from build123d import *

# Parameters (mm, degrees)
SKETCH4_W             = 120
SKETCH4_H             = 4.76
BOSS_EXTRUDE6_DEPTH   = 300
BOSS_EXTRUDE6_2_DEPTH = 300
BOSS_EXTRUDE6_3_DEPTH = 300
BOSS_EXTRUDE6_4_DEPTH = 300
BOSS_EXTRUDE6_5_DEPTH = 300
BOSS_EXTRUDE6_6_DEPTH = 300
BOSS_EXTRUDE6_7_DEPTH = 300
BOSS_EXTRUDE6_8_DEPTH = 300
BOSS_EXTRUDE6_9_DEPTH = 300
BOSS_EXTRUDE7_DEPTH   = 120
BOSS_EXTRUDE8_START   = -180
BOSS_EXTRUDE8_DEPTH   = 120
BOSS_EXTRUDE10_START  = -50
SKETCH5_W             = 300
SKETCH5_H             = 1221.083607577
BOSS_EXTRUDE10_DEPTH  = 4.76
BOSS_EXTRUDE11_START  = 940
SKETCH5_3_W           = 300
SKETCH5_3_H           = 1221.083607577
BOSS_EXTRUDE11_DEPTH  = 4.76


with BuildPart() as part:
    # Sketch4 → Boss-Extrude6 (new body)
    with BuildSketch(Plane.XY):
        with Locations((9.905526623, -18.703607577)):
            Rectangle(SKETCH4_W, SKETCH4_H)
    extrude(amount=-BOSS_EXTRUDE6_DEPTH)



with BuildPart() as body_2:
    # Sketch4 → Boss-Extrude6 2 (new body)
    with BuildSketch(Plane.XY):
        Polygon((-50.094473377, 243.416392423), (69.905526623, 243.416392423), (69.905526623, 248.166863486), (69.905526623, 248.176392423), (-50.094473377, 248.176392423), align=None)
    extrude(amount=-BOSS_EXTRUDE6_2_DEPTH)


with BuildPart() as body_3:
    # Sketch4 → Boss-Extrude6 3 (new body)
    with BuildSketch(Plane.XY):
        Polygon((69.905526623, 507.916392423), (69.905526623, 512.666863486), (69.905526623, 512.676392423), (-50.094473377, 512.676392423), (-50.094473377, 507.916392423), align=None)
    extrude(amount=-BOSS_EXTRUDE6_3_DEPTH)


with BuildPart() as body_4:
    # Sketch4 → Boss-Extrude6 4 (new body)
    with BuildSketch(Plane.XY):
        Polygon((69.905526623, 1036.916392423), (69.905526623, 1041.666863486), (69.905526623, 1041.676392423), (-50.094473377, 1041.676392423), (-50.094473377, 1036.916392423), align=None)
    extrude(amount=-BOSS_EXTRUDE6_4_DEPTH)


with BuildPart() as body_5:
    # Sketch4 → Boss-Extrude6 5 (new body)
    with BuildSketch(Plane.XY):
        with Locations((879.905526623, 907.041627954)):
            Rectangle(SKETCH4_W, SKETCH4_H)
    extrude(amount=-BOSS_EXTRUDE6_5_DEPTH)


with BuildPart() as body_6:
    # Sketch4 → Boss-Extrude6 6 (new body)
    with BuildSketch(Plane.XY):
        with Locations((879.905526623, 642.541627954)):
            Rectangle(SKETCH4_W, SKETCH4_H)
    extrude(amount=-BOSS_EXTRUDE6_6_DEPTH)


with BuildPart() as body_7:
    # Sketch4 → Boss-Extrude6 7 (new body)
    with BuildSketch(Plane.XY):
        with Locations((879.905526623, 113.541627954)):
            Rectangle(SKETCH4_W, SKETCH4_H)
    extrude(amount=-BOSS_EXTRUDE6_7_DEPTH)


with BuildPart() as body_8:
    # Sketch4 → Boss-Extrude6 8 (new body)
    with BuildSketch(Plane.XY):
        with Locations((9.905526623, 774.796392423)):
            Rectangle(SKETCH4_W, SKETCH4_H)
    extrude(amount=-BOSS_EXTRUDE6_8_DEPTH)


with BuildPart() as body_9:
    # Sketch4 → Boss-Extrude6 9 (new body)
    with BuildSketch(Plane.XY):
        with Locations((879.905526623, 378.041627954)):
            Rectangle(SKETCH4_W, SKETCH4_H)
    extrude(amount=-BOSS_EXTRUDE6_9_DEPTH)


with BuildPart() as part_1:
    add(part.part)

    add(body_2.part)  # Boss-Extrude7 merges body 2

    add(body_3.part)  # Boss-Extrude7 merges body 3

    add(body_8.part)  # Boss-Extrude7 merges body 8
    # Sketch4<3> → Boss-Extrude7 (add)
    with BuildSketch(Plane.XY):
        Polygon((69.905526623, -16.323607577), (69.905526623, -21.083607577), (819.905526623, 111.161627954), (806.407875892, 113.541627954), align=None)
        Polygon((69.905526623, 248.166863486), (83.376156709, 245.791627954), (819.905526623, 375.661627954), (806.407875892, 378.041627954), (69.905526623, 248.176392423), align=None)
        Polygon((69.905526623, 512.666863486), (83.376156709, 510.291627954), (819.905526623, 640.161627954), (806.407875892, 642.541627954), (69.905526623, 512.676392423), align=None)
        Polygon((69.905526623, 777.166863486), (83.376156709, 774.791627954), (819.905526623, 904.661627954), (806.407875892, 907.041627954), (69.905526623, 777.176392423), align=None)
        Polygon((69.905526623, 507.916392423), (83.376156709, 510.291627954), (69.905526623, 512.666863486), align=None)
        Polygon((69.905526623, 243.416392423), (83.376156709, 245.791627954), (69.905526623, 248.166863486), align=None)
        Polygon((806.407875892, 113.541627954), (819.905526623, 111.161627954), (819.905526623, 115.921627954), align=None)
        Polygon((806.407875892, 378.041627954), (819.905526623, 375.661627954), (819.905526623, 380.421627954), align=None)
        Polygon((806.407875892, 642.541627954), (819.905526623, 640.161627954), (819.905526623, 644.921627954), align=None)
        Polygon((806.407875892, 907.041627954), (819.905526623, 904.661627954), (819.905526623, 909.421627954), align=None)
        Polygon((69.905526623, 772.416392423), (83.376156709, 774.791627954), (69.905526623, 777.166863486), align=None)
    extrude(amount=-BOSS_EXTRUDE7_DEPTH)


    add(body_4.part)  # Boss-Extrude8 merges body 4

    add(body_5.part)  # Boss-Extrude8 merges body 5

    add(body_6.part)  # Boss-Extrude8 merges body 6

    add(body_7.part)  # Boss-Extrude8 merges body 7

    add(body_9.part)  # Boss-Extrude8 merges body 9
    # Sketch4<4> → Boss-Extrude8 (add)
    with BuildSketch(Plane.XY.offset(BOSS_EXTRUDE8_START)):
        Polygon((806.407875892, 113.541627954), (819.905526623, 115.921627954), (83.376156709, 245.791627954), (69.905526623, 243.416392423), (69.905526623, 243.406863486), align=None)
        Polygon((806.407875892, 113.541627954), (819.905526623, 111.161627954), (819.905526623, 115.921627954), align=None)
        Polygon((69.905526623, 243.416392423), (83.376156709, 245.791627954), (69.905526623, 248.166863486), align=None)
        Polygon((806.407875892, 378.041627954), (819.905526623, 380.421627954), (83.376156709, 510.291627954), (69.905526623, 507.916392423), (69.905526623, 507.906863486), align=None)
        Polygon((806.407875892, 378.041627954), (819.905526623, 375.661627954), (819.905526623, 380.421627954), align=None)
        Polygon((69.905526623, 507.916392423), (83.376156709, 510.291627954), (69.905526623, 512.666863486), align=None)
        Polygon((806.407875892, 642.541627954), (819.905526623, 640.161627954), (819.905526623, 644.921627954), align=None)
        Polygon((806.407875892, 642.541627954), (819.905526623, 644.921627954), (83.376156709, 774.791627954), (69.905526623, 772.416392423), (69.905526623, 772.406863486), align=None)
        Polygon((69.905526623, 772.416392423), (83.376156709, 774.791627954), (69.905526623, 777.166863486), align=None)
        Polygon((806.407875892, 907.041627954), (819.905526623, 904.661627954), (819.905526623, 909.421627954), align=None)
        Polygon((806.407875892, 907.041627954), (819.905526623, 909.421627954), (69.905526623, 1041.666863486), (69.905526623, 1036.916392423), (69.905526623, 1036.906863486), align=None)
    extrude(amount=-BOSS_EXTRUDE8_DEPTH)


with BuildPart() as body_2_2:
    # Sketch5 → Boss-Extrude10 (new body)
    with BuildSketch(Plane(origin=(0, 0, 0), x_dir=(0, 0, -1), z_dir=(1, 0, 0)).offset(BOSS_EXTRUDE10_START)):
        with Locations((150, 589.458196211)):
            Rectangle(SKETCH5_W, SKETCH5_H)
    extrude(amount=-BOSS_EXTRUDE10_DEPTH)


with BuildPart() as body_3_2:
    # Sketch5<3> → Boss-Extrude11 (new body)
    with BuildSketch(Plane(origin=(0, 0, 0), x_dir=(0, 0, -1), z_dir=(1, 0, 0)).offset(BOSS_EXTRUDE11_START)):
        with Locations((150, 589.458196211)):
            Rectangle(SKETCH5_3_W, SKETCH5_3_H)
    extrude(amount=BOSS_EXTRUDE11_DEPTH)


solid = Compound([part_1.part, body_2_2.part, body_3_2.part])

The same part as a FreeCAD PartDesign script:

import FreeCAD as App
import Part
import Sketcher

V = App.Vector
Q = App.Units.Quantity


def add_polygon(sketch, points):
    """Adds a closed chain of lines whose ends are joined by coincident constraints."""
    first, n = sketch.GeometryCount, len(points)
    for a, b in zip(points, points[1:] + points[:1]):
        sketch.addGeometry(Part.LineSegment(App.Vector(*a, 0), App.Vector(*b, 0)), False)
    for i in range(n):
        sketch.addConstraint(Sketcher.Constraint("Coincident", first + i, 2, first + (i + 1) % n, 1))

doc = App.newDocument("Part")
body = doc.addObject("PartDesign::Body", "Body")

# Sketch on XY plane
sketch1 = body.newObject("Sketcher::SketchObject", "Sketch")
sketch1.AttachmentSupport = (doc.getObject("XY_Plane"), [""])
sketch1.MapMode = "FlatFace"
add_polygon(sketch1, [(-50.1, -16.3), (-50.1, -21.1), (69.9, -21.1), (69.9, -16.3)])  # lines 0-3
sketch1.addConstraint([
    Sketcher.Constraint("Vertical", 0),
    Sketcher.Constraint("Horizontal", 1),
    Sketcher.Constraint("Vertical", 2),
    Sketcher.Constraint("Horizontal", 3),
    Sketcher.Constraint("DistanceX", 1, 1, 1, 2, 120.0),
    Sketcher.Constraint("DistanceY", 0, 2, 0, 1, 4.76),
    Sketcher.Constraint("DistanceX", 0, 2, -1, 1, 50.094473),
    Sketcher.Constraint("DistanceY", 0, 2, -1, 1, 21.083608),
])
pad1 = body.newObject("PartDesign::Pad", "Pad")
pad1.Profile = sketch1
pad1.Length = 300
pad1.Reversed = True
body2 = doc.addObject("PartDesign::Body", "Body001")

# Sketch on XY plane
sketch2 = body2.newObject("Sketcher::SketchObject", "Sketch001")
sketch2.AttachmentSupport = (doc.getObject("XY_Plane001"), [""])
sketch2.MapMode = "FlatFace"
add_polygon(sketch2, [(-50.1, 243.4), (69.9, 243.4), (69.9, 248.2), (-50.1, 248.2)])  # lines 0-3
sketch2.addConstraint([
    Sketcher.Constraint("Horizontal", 0),
    Sketcher.Constraint("Vertical", 1),
    Sketcher.Constraint("Horizontal", 2),
    Sketcher.Constraint("Vertical", 3),
    Sketcher.Constraint("DistanceX", 0, 1, 0, 2, 120.0),
    Sketcher.Constraint("DistanceY", 1, 1, 1, 2, 4.76),
    Sketcher.Constraint("DistanceX", -1, 1, 0, 2, 69.905527),
    Sketcher.Constraint("DistanceY", -1, 1, 0, 2, 243.416392),
])
pad2 = body2.newObject("PartDesign::Pad", "Pad001")
pad2.Profile = sketch2
pad2.Length = 300
pad2.Reversed = True
body3 = doc.addObject("PartDesign::Body", "Body002")

# Sketch on XY plane
sketch3 = body3.newObject("Sketcher::SketchObject", "Sketch002")
sketch3.AttachmentSupport = (doc.getObject("XY_Plane002"), [""])
sketch3.MapMode = "FlatFace"
add_polygon(sketch3, [(69.9, 507.9), (69.9, 512.7), (-50.1, 512.7), (-50.1, 507.9)])  # lines 0-3
sketch3.addConstraint([
    Sketcher.Constraint("Vertical", 0),
    Sketcher.Constraint("Horizontal", 1),
    Sketcher.Constraint("Vertical", 2),
    Sketcher.Constraint("Horizontal", 3),
    Sketcher.Constraint("DistanceX", 1, 2, 1, 1, 120.0),
    Sketcher.Constraint("DistanceY", 0, 1, 0, 2, 4.76),
    Sketcher.Constraint("DistanceX", -1, 1, 0, 2, 69.905527),
    Sketcher.Constraint("DistanceY", -1, 1, 0, 2, 512.676392),
])
pad3 = body3.newObject("PartDesign::Pad", "Pad002")
pad3.Profile = sketch3
pad3.Length = 300
pad3.Reversed = True
body4 = doc.addObject("PartDesign::Body", "Body003")

# Sketch on XY plane
sketch4 = body4.newObject("Sketcher::SketchObject", "Sketch003")
sketch4.AttachmentSupport = (doc.getObject("XY_Plane003"), [""])
sketch4.MapMode = "FlatFace"
add_polygon(sketch4, [(69.9, 1036.9), (69.9, 1041.7), (-50.1, 1041.7), (-50.1, 1036.9)])  # lines 0-3
sketch4.addConstraint([
    Sketcher.Constraint("Vertical", 0),
    Sketcher.Constraint("Horizontal", 1),
    Sketcher.Constraint("Vertical", 2),
    Sketcher.Constraint("Horizontal", 3),
    Sketcher.Constraint("DistanceX", 1, 2, 1, 1, 120.0),
    Sketcher.Constraint("DistanceY", 0, 1, 0, 2, 4.76),
    Sketcher.Constraint("DistanceX", -1, 1, 0, 2, 69.905527),
    Sketcher.Constraint("DistanceY", -1, 1, 0, 2, 1041.676392),
])
pad4 = body4.newObject("PartDesign::Pad", "Pad003")
pad4.Profile = sketch4
pad4.Length = 300
pad4.Reversed = True
body5 = doc.addObject("PartDesign::Body", "Body004")

# Sketch on XY plane
sketch5 = body5.newObject("Sketcher::SketchObject", "Sketch004")
sketch5.AttachmentSupport = (doc.getObject("XY_Plane004"), [""])
sketch5.MapMode = "FlatFace"
add_polygon(sketch5, [(819.9, 909.4), (819.9, 904.7), (939.9, 904.7), (939.9, 909.4)])  # lines 0-3
sketch5.addConstraint([
    Sketcher.Constraint("Vertical", 0),
    Sketcher.Constraint("Horizontal", 1),
    Sketcher.Constraint("Vertical", 2),
    Sketcher.Constraint("Horizontal", 3),
    Sketcher.Constraint("DistanceX", 1, 1, 1, 2, 120.0),
    Sketcher.Constraint("DistanceY", 0, 2, 0, 1, 4.76),
    Sketcher.Constraint("DistanceX", -1, 1, 0, 2, 819.905527),
    Sketcher.Constraint("DistanceY", -1, 1, 0, 2, 904.661628),
])
pad5 = body5.newObject("PartDesign::Pad", "Pad004")
pad5.Profile = sketch5
pad5.Length = 300
pad5.Reversed = True
body6 = doc.addObject("PartDesign::Body", "Body005")

# Sketch on XY plane
sketch6 = body6.newObject("Sketcher::SketchObject", "Sketch005")
sketch6.AttachmentSupport = (doc.getObject("XY_Plane005"), [""])
sketch6.MapMode = "FlatFace"
add_polygon(sketch6, [(819.9, 644.9), (819.9, 640.2), (939.9, 640.2), (939.9, 644.9)])  # lines 0-3
sketch6.addConstraint([
    Sketcher.Constraint("Vertical", 0),
    Sketcher.Constraint("Horizontal", 1),
    Sketcher.Constraint("Vertical", 2),
    Sketcher.Constraint("Horizontal", 3),
    Sketcher.Constraint("DistanceX", 1, 1, 1, 2, 120.0),
    Sketcher.Constraint("DistanceY", 0, 2, 0, 1, 4.76),
    Sketcher.Constraint("DistanceX", -1, 1, 0, 2, 819.905527),
    Sketcher.Constraint("DistanceY", -1, 1, 0, 2, 640.161628),
])
pad6 = body6.newObject("PartDesign::Pad", "Pad005")
pad6.Profile = sketch6
pad6.Length = 300
pad6.Reversed = True
body7 = doc.addObject("PartDesign::Body", "Body006")

# Sketch on XY plane
sketch7 = body7.newObject("Sketcher::SketchObject", "Sketch006")
sketch7.AttachmentSupport = (doc.getObject("XY_Plane006"), [""])
sketch7.MapMode = "FlatFace"
add_polygon(sketch7, [(819.9, 115.9), (819.9, 111.2), (939.9, 111.2), (939.9, 115.9)])  # lines 0-3
sketch7.addConstraint([
    Sketcher.Constraint("Vertical", 0),
    Sketcher.Constraint("Horizontal", 1),
    Sketcher.Constraint("Vertical", 2),
    Sketcher.Constraint("Horizontal", 3),
    Sketcher.Constraint("DistanceX", 1, 1, 1, 2, 120.0),
    Sketcher.Constraint("DistanceY", 0, 2, 0, 1, 4.76),
    Sketcher.Constraint("DistanceX", -1, 1, 0, 2, 819.905527),
    Sketcher.Constraint("DistanceY", -1, 1, 0, 2, 111.161628),
])
pad7 = body7.newObject("PartDesign::Pad", "Pad006")
pad7.Profile = sketch7
pad7.Length = 300
pad7.Reversed = True
body8 = doc.addObject("PartDesign::Body", "Body007")

# Sketch on XY plane
sketch8 = body8.newObject("Sketcher::SketchObject", "Sketch007")
sketch8.AttachmentSupport = (doc.getObject("XY_Plane007"), [""])
sketch8.MapMode = "FlatFace"
add_polygon(sketch8, [(-50.1, 777.2), (-50.1, 772.4), (69.9, 772.4), (69.9, 777.2)])  # lines 0-3
sketch8.addConstraint([
    Sketcher.Constraint("Vertical", 0),
    Sketcher.Constraint("Horizontal", 1),
    Sketcher.Constraint("Vertical", 2),
    Sketcher.Constraint("Horizontal", 3),
    Sketcher.Constraint("DistanceX", 1, 1, 1, 2, 120.0),
    Sketcher.Constraint("DistanceY", 0, 2, 0, 1, 4.76),
    Sketcher.Constraint("DistanceX", 0, 2, -1, 1, 50.094473),
    Sketcher.Constraint("DistanceY", -1, 1, 0, 2, 772.416392),
])
pad8 = body8.newObject("PartDesign::Pad", "Pad007")
pad8.Profile = sketch8
pad8.Length = 300
pad8.Reversed = True
body9 = doc.addObject("PartDesign::Body", "Body008")

# Sketch on XY plane
sketch9 = body9.newObject("Sketcher::SketchObject", "Sketch008")
sketch9.AttachmentSupport = (doc.getObject("XY_Plane008"), [""])
sketch9.MapMode = "FlatFace"
add_polygon(sketch9, [(819.9, 380.4), (819.9, 375.7), (939.9, 375.7), (939.9, 380.4)])  # lines 0-3
sketch9.addConstraint([
    Sketcher.Constraint("Vertical", 0),
    Sketcher.Constraint("Horizontal", 1),
    Sketcher.Constraint("Vertical", 2),
    Sketcher.Constraint("Horizontal", 3),
    Sketcher.Constraint("DistanceX", 1, 1, 1, 2, 120.0),
    Sketcher.Constraint("DistanceY", 0, 2, 0, 1, 4.76),
    Sketcher.Constraint("DistanceX", -1, 1, 0, 2, 819.905527),
    Sketcher.Constraint("DistanceY", -1, 1, 0, 2, 375.661628),
])
pad9 = body9.newObject("PartDesign::Pad", "Pad008")
pad9.Profile = sketch9
pad9.Length = 300
pad9.Reversed = True
body.AllowCompound = True
doc.recompute()

boolean = body.newObject("PartDesign::Boolean", "Boolean")
boolean.Type = "Fuse"
boolean.addObjects([body2])
doc.recompute()

boolean2 = body.newObject("PartDesign::Boolean", "Boolean001")
boolean2.Type = "Fuse"
boolean2.addObjects([body3])
doc.recompute()

boolean3 = body.newObject("PartDesign::Boolean", "Boolean002")
boolean3.Type = "Fuse"
boolean3.addObjects([body8])

# Sketch on XY plane
sketch10 = body.newObject("Sketcher::SketchObject", "Sketch009")
sketch10.AttachmentSupport = (doc.getObject("XY_Plane"), [""])
sketch10.MapMode = "FlatFace"
add_polygon(sketch10, [(69.9, -16.3), (69.9, -21.1), (819.9, 111.2), (819.9, 115.9), (806.4, 113.5)])  # lines 0-4
add_polygon(sketch10, [(83.4, 245.8), (819.9, 375.7), (819.9, 380.4), (806.4, 378), (69.9, 248.2), (69.9, 243.4)])  # lines 5-10
add_polygon(sketch10, [(83.4, 510.3), (819.9, 640.2), (819.9, 644.9), (806.4, 642.5), (69.9, 512.7), (69.9, 507.9)])  # lines 11-16
add_polygon(sketch10, [(83.4, 774.8), (819.9, 904.7), (819.9, 909.4), (806.4, 907), (69.9, 777.2), (69.9, 772.4)])  # lines 17-22
sketch10.addConstraint([
    Sketcher.Constraint("Vertical", 0),
    Sketcher.Constraint("Vertical", 2),
    Sketcher.Constraint("Vertical", 6),
    Sketcher.Constraint("Vertical", 9),
    Sketcher.Constraint("Vertical", 12),
    Sketcher.Constraint("Vertical", 15),
    Sketcher.Constraint("Vertical", 18),
    Sketcher.Constraint("Vertical", 21),
    Sketcher.Constraint("Parallel", 1, 3),
    Sketcher.Constraint("Parallel", 3, 4),
    Sketcher.Constraint("Parallel", 4, 5),
    Sketcher.Constraint("Parallel", 5, 7),
    Sketcher.Constraint("Parallel", 7, 8),
    Sketcher.Constraint("Parallel", 8, 10),
    Sketcher.Constraint("Parallel", 10, 11),
    Sketcher.Constraint("Parallel", 11, 13),
    Sketcher.Constraint("Parallel", 13, 14),
    Sketcher.Constraint("Parallel", 14, 16),
    Sketcher.Constraint("Parallel", 16, 17),
    Sketcher.Constraint("Parallel", 17, 19),
    Sketcher.Constraint("Parallel", 19, 20),
    Sketcher.Constraint("Parallel", 20, 22),
    Sketcher.Constraint("Vertical", 2, 2, 5, 2),
    Sketcher.Constraint("Vertical", 3, 2, 7, 2),
    Sketcher.Constraint("Vertical", 4, 2, 8, 2),
    Sketcher.Constraint("Vertical", 6, 2, 11, 2),
    Sketcher.Constraint("Vertical", 7, 2, 13, 2),
    Sketcher.Constraint("Vertical", 9, 2, 14, 2),
    Sketcher.Constraint("Vertical", 10, 2, 16, 2),
    Sketcher.Constraint("Vertical", 12, 2, 17, 2),
    Sketcher.Constraint("Vertical", 13, 2, 19, 2),
    Sketcher.Constraint("Vertical", 15, 2, 20, 2),
    Sketcher.Constraint("Vertical", 16, 2, 22, 2),
    Sketcher.Constraint("Equal", 2, 6),
    Sketcher.Constraint("Equal", 9, 12),
    Sketcher.Constraint("Equal", 15, 18),
    Sketcher.Constraint("Angle", 1, Q("10 deg")),
    Sketcher.Constraint("DistanceX", 0, 2, 1, 2, 750.0),
    Sketcher.Constraint("DistanceY", 2, 2, 12, 2, 529.0),
    Sketcher.Constraint("DistanceY", 6, 2, 18, 2, 529.0),
    Sketcher.Constraint("DistanceY", 0, 2, 0, 1, 4.76),
    Sketcher.Constraint("DistanceY", 1, 2, 5, 2, 264.5),
    Sketcher.Constraint("DistanceY", 3, 2, 2, 2, 2.38),
    Sketcher.Constraint("DistanceY", 3, 2, 10, 2, 132.25),
    Sketcher.Constraint("DistanceX", -1, 1, 0, 2, 69.905527),
    Sketcher.Constraint("DistanceY", 0, 2, -1, 1, 21.083608),
])
pad10 = body.newObject("PartDesign::Pad", "Pad009")
pad10.Profile = sketch10
pad10.Length = 120
pad10.Reversed = True
doc.recompute()

boolean4 = body.newObject("PartDesign::Boolean", "Boolean003")
boolean4.Type = "Fuse"
boolean4.addObjects([body4])
doc.recompute()

boolean5 = body.newObject("PartDesign::Boolean", "Boolean004")
boolean5.Type = "Fuse"
boolean5.addObjects([body5])
doc.recompute()

boolean6 = body.newObject("PartDesign::Boolean", "Boolean005")
boolean6.Type = "Fuse"
boolean6.addObjects([body6])
doc.recompute()

boolean7 = body.newObject("PartDesign::Boolean", "Boolean006")
boolean7.Type = "Fuse"
boolean7.addObjects([body7])
doc.recompute()

boolean8 = body.newObject("PartDesign::Boolean", "Boolean007")
boolean8.Type = "Fuse"
boolean8.addObjects([body9])

# Sketch on XY plane
sketch11 = body.newObject("Sketcher::SketchObject", "Sketch010")
sketch11.AttachmentSupport = (doc.getObject("XY_Plane"), [""])
sketch11.MapMode = "FlatFace"
sketch11.AttachmentOffset = App.Placement(V(0, 0, -180), App.Rotation())
add_polygon(sketch11, [(819.9, 115.9), (83.4, 245.8), (69.9, 248.2), (69.9, 243.4), (806.4, 113.5), (819.9, 111.2)])  # lines 0-5
add_polygon(sketch11, [(819.9, 380.4), (83.4, 510.3), (69.9, 512.7), (69.9, 507.9), (806.4, 378), (819.9, 375.7)])  # lines 6-11
add_polygon(sketch11, [(806.4, 642.5), (819.9, 640.2), (819.9, 644.9), (83.4, 774.8), (69.9, 777.2), (69.9, 772.4)])  # lines 12-17
add_polygon(sketch11, [(806.4, 907), (819.9, 904.7), (819.9, 909.4), (69.9, 1041.7), (69.9, 1036.9)])  # lines 18-22
sketch11.addConstraint([
    Sketcher.Constraint("Vertical", 2),
    Sketcher.Constraint("Vertical", 5),
    Sketcher.Constraint("Vertical", 8),
    Sketcher.Constraint("Vertical", 11),
    Sketcher.Constraint("Vertical", 13),
    Sketcher.Constraint("Vertical", 16),
    Sketcher.Constraint("Vertical", 19),
    Sketcher.Constraint("Vertical", 21),
    Sketcher.Constraint("Parallel", 0, 1),
    Sketcher.Constraint("Parallel", 1, 3),
    Sketcher.Constraint("Parallel", 3, 4),
    Sketcher.Constraint("Parallel", 4, 6),
    Sketcher.Constraint("Parallel", 6, 7),
    Sketcher.Constraint("Parallel", 7, 9),
    Sketcher.Constraint("Parallel", 9, 10),
    Sketcher.Constraint("Parallel", 10, 12),
    Sketcher.Constraint("Parallel", 12, 14),
    Sketcher.Constraint("Parallel", 14, 15),
    Sketcher.Constraint("Parallel", 15, 17),
    Sketcher.Constraint("Parallel", 17, 18),
    Sketcher.Constraint("Parallel", 18, 20),
    Sketcher.Constraint("Parallel", 20, 22),
    Sketcher.Constraint("Vertical", 0, 2, 6, 2),
    Sketcher.Constraint("Vertical", 2, 2, 7, 2),
    Sketcher.Constraint("Vertical", 3, 2, 9, 2),
    Sketcher.Constraint("Vertical", 5, 2, 10, 2),
    Sketcher.Constraint("Vertical", 11, 2, 12, 2),
    Sketcher.Constraint("Vertical", 6, 2, 14, 2),
    Sketcher.Constraint("Vertical", 8, 2, 15, 2),
    Sketcher.Constraint("Vertical", 9, 2, 17, 2),
    Sketcher.Constraint("Vertical", 13, 2, 18, 2),
    Sketcher.Constraint("Vertical", 16, 2, 20, 2),
    Sketcher.Constraint("Vertical", 17, 2, 22, 2),
    Sketcher.Constraint("Equal", 5, 8),
    Sketcher.Constraint("Equal", 11, 13),
    Sketcher.Constraint("Equal", 16, 19),
    Sketcher.Constraint("Angle", 0, Q("170 deg")),
    Sketcher.Constraint("DistanceX", 2, 2, 4, 2, 750.0),
    Sketcher.Constraint("DistanceY", 5, 2, 13, 2, 529.0),
    Sketcher.Constraint("DistanceY", 11, 2, 19, 2, 529.0),
    Sketcher.Constraint("DistanceY", 2, 2, 2, 1, 4.76),
    Sketcher.Constraint("DistanceY", 0, 2, 6, 2, 264.5),
    Sketcher.Constraint("DistanceY", 3, 2, 0, 2, 132.25),
    Sketcher.Constraint("DistanceY", 4, 2, 3, 2, 2.38),
    Sketcher.Constraint("DistanceX", -1, 1, 0, 2, 83.376157),
    Sketcher.Constraint("DistanceY", -1, 1, 0, 2, 245.791628),
])
pad11 = body.newObject("PartDesign::Pad", "Pad010")
pad11.Profile = sketch11
pad11.Length = 120
pad11.Reversed = True
body10 = doc.addObject("PartDesign::Body", "Body009")

# Sketch on YZ plane
sketch12 = body10.newObject("Sketcher::SketchObject", "Sketch011")
sketch12.AttachmentSupport = (doc.getObject("YZ_Plane009"), [""])
sketch12.MapMode = "FlatFace"
sketch12.AttachmentOffset = App.Placement(V(0, 0, -50), App.Rotation())
add_polygon(sketch12, [(1200, 0), (-21, 0), (-21, -300), (1200, -300)])  # lines 0-3
sketch12.addConstraint([
    Sketcher.Constraint("Horizontal", 0),
    Sketcher.Constraint("Vertical", 1),
    Sketcher.Constraint("Horizontal", 2),
    Sketcher.Constraint("Vertical", 3),
    Sketcher.Constraint("PointOnObject", 0, 2, -1),
    Sketcher.Constraint("DistanceY", 1, 2, 1, 1, 300.0),
    Sketcher.Constraint("DistanceX", -1, 1, 2, 2, 1200.0),
    Sketcher.Constraint("DistanceX", 0, 2, 0, 1, 1221.083608),
])
pad12 = body10.newObject("PartDesign::Pad", "Pad011")
pad12.Profile = sketch12
pad12.Length = 4.76
pad12.Reversed = True
body11 = doc.addObject("PartDesign::Body", "Body010")

# Sketch on YZ plane
sketch13 = body11.newObject("Sketcher::SketchObject", "Sketch012")
sketch13.AttachmentSupport = (doc.getObject("YZ_Plane010"), [""])
sketch13.MapMode = "FlatFace"
sketch13.AttachmentOffset = App.Placement(V(0, 0, 940), App.Rotation())
add_polygon(sketch13, [(1200, 0), (-21, 0), (-21, -300), (1200, -300)])  # lines 0-3
sketch13.addConstraint([
    Sketcher.Constraint("Horizontal", 0),
    Sketcher.Constraint("Vertical", 1),
    Sketcher.Constraint("Horizontal", 2),
    Sketcher.Constraint("Vertical", 3),
    Sketcher.Constraint("PointOnObject", 0, 2, -1),
    Sketcher.Constraint("DistanceY", 1, 2, 1, 1, 300.0),
    Sketcher.Constraint("DistanceX", -1, 1, 2, 2, 1200.0),
    Sketcher.Constraint("DistanceX", 0, 2, 0, 1, 1221.083608),
])
pad13 = body11.newObject("PartDesign::Pad", "Pad012")
pad13.Profile = sketch13
pad13.Length = 4.76

doc.recompute()
